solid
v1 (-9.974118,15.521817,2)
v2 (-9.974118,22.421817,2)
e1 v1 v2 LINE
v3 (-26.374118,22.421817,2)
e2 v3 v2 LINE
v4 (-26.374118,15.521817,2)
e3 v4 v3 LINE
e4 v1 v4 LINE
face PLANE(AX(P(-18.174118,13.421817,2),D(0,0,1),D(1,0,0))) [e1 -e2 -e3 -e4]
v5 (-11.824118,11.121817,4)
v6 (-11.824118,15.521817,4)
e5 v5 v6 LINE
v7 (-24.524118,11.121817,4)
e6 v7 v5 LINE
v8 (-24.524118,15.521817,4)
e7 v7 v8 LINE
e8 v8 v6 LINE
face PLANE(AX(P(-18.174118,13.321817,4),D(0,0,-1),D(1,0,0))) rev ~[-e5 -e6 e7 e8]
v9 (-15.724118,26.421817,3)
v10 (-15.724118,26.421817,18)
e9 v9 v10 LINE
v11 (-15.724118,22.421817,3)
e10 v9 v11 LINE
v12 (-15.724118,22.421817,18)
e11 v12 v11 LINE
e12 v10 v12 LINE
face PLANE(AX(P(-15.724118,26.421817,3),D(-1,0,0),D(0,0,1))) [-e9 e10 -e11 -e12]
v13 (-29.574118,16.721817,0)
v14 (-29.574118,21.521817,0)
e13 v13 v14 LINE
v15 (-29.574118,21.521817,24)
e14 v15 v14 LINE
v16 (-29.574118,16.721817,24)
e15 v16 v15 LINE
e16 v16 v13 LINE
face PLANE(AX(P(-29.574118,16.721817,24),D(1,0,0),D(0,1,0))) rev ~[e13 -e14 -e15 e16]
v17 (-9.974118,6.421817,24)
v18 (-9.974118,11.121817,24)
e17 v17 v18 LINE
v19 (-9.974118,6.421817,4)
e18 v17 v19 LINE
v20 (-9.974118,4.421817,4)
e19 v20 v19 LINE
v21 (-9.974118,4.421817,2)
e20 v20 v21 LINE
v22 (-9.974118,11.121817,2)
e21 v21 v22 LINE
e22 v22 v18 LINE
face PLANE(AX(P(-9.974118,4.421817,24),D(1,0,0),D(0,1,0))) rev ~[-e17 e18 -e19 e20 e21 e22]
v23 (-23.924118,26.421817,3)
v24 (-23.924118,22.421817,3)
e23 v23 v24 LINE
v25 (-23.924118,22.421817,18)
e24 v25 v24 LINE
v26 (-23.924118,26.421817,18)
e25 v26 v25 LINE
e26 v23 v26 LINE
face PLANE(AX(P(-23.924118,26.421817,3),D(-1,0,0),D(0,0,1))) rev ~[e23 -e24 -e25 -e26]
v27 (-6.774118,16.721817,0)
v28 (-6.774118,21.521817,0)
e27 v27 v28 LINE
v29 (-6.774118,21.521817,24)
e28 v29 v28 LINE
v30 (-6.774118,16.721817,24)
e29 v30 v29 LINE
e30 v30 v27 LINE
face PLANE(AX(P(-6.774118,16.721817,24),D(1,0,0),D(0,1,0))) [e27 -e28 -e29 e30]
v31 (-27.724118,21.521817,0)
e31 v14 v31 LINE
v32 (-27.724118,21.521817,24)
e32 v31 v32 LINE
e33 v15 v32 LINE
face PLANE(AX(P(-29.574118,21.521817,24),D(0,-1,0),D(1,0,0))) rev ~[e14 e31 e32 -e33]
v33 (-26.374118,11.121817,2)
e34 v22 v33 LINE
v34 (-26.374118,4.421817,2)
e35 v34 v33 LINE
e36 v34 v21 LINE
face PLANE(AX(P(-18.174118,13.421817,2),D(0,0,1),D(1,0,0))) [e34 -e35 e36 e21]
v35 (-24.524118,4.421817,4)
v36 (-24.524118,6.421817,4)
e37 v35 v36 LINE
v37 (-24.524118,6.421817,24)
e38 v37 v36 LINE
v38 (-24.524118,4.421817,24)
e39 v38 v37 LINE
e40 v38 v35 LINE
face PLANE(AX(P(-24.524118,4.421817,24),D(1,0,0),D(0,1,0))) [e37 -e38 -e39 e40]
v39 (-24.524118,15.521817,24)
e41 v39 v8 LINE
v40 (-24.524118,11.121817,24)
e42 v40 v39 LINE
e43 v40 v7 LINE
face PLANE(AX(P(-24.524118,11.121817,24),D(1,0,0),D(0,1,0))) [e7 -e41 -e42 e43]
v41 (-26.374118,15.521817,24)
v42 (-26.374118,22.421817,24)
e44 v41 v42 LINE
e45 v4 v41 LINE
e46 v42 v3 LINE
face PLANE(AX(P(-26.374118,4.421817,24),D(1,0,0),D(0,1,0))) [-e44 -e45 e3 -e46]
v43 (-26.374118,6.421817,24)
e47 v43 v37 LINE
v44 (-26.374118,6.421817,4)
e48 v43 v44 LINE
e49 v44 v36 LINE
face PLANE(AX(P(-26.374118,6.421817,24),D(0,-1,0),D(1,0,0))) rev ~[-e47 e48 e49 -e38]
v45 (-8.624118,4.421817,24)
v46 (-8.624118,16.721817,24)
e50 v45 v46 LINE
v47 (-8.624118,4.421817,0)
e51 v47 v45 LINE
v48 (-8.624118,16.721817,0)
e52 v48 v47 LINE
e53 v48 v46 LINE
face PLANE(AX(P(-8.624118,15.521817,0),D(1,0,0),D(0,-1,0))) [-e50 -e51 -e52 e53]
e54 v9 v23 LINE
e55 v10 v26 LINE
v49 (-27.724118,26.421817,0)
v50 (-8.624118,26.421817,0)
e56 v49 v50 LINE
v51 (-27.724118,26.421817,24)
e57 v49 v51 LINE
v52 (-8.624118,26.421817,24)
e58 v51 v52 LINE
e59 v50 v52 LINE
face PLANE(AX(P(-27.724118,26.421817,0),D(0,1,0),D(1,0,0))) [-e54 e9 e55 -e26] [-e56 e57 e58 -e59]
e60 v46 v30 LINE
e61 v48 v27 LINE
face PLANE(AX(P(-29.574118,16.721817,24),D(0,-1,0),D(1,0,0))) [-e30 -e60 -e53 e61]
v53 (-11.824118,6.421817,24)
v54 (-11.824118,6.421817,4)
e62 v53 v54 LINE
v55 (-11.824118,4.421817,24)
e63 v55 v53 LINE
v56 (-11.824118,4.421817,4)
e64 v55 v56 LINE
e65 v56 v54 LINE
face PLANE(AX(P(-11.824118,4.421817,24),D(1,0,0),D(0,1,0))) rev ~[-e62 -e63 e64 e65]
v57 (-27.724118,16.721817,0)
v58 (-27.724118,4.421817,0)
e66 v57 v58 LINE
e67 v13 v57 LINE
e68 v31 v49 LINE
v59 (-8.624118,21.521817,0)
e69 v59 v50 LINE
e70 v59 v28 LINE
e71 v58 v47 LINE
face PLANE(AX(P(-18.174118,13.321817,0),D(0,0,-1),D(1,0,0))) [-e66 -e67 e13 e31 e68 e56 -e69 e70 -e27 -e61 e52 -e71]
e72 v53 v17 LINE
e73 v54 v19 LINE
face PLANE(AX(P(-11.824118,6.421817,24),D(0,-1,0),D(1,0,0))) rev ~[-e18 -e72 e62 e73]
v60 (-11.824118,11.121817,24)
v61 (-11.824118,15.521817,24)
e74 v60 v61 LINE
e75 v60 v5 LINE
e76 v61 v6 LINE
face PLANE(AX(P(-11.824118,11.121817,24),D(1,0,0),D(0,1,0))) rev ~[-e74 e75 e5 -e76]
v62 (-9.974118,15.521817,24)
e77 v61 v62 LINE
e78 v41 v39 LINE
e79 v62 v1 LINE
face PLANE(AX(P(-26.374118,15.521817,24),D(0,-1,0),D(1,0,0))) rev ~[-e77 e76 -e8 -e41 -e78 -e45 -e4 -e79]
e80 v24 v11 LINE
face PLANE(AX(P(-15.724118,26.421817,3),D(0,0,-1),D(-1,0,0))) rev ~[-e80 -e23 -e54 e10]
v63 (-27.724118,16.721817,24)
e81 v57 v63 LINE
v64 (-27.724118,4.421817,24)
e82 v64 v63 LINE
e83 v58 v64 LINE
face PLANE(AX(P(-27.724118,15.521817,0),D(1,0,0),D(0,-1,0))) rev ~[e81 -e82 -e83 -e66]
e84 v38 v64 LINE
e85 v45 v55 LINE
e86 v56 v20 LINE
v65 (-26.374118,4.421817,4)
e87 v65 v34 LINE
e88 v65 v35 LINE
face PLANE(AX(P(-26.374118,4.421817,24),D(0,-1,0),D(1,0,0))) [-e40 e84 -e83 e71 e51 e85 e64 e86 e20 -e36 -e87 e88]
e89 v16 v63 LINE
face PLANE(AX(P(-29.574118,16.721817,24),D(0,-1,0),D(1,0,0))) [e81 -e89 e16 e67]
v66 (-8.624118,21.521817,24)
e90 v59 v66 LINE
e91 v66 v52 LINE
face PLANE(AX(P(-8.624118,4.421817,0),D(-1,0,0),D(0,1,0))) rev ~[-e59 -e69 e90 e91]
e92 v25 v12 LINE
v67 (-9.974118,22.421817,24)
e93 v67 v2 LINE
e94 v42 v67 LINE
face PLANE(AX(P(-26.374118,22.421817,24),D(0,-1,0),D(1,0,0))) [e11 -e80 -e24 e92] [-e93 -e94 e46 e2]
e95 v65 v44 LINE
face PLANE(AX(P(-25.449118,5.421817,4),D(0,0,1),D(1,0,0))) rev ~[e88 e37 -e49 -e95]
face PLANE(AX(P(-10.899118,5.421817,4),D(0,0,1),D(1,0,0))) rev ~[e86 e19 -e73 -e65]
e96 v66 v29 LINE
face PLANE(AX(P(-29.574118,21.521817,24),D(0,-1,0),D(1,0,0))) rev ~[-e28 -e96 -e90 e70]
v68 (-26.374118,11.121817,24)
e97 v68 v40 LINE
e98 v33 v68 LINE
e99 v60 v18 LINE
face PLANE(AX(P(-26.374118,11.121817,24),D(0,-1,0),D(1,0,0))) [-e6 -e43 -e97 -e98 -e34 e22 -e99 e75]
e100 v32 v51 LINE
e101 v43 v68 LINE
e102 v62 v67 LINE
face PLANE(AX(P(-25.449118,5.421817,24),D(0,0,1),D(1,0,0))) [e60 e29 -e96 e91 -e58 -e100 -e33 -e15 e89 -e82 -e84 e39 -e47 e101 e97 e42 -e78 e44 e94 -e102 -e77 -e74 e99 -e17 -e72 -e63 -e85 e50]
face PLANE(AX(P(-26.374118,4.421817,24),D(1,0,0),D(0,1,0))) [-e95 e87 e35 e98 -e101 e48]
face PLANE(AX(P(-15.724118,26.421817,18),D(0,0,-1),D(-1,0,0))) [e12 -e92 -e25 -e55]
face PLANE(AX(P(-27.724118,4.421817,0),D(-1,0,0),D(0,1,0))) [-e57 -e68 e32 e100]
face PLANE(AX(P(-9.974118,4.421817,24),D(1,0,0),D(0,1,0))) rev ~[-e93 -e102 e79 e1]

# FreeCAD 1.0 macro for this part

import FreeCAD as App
import Part
import Sketcher

V = App.Vector


def add_polygon(sketch, points):
    """Adds a closed chain of lines whose ends are joined by coincident constraints."""
    first, n = sketch.GeometryCount, len(points)
    for a, b in zip(points, points[1:] + points[:1]):
        sketch.addGeometry(Part.LineSegment(App.Vector(*a, 0), App.Vector(*b, 0)), False)
    for i in range(n):
        sketch.addConstraint(Sketcher.Constraint("Coincident", first + i, 2, first + (i + 1) % n, 1))

doc = App.newDocument("Part")
params = doc.addObject("Spreadsheet::Sheet", "Params")
for row, (alias, value) in enumerate([
    ("sketch1_height", "22 mm"),
    ("sketch1_width", "19.1 mm"),
    ("pad1_length", "24 mm"),
    ("sketch2_width", "22.8 mm"),
    ("sketch2_height", "4.8 mm"),
    ("pad2_length", "24 mm"),
    ("sketch3_height", "18 mm"),
    ("sketch3_width", "16.4 mm"),
    ("pocket1_length", "22 mm"),
    ("sketch4_height", "15 mm"),
    ("sketch4_width", "8.2 mm"),
    ("pocket2_length", "5 mm"),
    ("sketch5_height", "2 mm"),
    ("sketch5_height2", "4.4 mm"),
    ("sketch5_width", "1.85 mm"),
    ("pad3_length", "20 mm"),
    ("sketch6_width", "19.1 mm"),
    ("sketch6_height", "4.4 mm"),
    ("pad4_length", "4 mm"),
], start=1):
    params.set(f"A{row}", alias)
    params.set(f"B{row}", "=" + value)
    params.setAlias(f"B{row}", alias)

body = doc.addObject("PartDesign::Body", "Body")

sketch1 = body.newObject("Sketcher::SketchObject", "Sketch")
sketch1.AttachmentSupport = (doc.getObject("XY_Plane"), [""])
sketch1.MapMode = "FlatFace"
add_polygon(sketch1, [(-27.724118, 26.421817), (-27.724118, 4.421817), (-8.624118, 4.421817), (-8.624118, 26.421817)])
sketch1.addConstraint([
    Sketcher.Constraint("Vertical", 0),
    Sketcher.Constraint("Horizontal", 1),
    Sketcher.Constraint("Vertical", 2),
    Sketcher.Constraint("Horizontal", 3),
    Sketcher.Constraint("DistanceY", 0, 2, 0, 1, 22.0),
    Sketcher.Constraint("DistanceX", 1, 1, 1, 2, 19.1),
    Sketcher.Constraint("DistanceX", 0, 2, -1, 1, 27.724118),
    Sketcher.Constraint("DistanceY", -1, 1, 0, 2, 4.421817),
])
sketch1.setExpression("Constraints[8]", "Params.sketch1_height")
sketch1.setExpression("Constraints[9]", "Params.sketch1_width")
pad1 = body.newObject("PartDesign::Pad", "Pad")
pad1.Profile = sketch1
pad1.setExpression("Length", "Params.pad1_length")

sketch2 = body.newObject("Sketcher::SketchObject", "Sketch001")
sketch2.AttachmentSupport = (doc.getObject("XY_Plane"), [""])
sketch2.MapMode = "FlatFace"
sketch2.AttachmentOffset = App.Placement(V(0, 0, 24), App.Rotation())
add_polygon(sketch2, [(-29.574118, 21.521817), (-29.574118, 16.721817), (-6.774118, 16.721817), (-6.774118, 21.521817)])
sketch2.addConstraint([
    Sketcher.Constraint("Vertical", 0),
    Sketcher.Constraint("Horizontal", 1),
    Sketcher.Constraint("Vertical", 2),
    Sketcher.Constraint("Horizontal", 3),
    Sketcher.Constraint("DistanceX", 1, 1, 1, 2, 22.8),
    Sketcher.Constraint("DistanceY", 0, 2, 0, 1, 4.8),
    Sketcher.Constraint("DistanceX", 0, 2, -1, 1, 29.574118),
    Sketcher.Constraint("DistanceY", -1, 1, 0, 2, 16.721817),
])
sketch2.setExpression("Constraints[8]", "Params.sketch2_width")
sketch2.setExpression("Constraints[9]", "Params.sketch2_height")
pad2 = body.newObject("PartDesign::Pad", "Pad001")
pad2.Profile = sketch2
pad2.setExpression("Length", "Params.pad2_length")
pad2.Reversed = True

sketch3 = body.newObject("Sketcher::SketchObject", "Sketch002")
sketch3.AttachmentSupport = (doc.getObject("XY_Plane"), [""])
sketch3.MapMode = "FlatFace"
sketch3.AttachmentOffset = App.Placement(V(0, 0, 24), App.Rotation())
add_polygon(sketch3, [(-26.374118, 22.421817), (-26.374118, 4.421817), (-9.974118, 4.421817), (-9.974118, 22.421817)])
sketch3.addConstraint([
    Sketcher.Constraint("Vertical", 0),
    Sketcher.Constraint("Horizontal", 1),
    Sketcher.Constraint("Vertical", 2),
    Sketcher.Constraint("Horizontal", 3),
    Sketcher.Constraint("DistanceY", 0, 2, 0, 1, 18.0),
    Sketcher.Constraint("DistanceX", 1, 1, 1, 2, 16.4),
    Sketcher.Constraint("DistanceX", 1, 2, -1, 1, 9.974118),
    Sketcher.Constraint("DistanceY", -1, 1, 0, 2, 4.421817),
])
sketch3.setExpression("Constraints[8]", "Params.sketch3_height")
sketch3.setExpression("Constraints[9]", "Params.sketch3_width")
pocket1 = body.newObject("PartDesign::Pocket", "Pocket")
pocket1.Profile = sketch3
pocket1.setExpression("Length", "Params.pocket1_length")

sketch4 = body.newObject("Sketcher::SketchObject", "Sketch003")
sketch4.AttachmentSupport = (doc.getObject("XZ_Plane"), [""])
sketch4.MapMode = "FlatFace"
sketch4.AttachmentOffset = App.Placement(V(0, 0, -26.421817), App.Rotation())
add_polygon(sketch4, [(-15.724118, 18), (-15.724118, 3), (-23.924118, 3), (-23.924118, 18)])
sketch4.addConstraint([
    Sketcher.Constraint("Vertical", 0),
    Sketcher.Constraint("Horizontal", 1),
    Sketcher.Constraint("Vertical", 2),
    Sketcher.Constraint("Horizontal", 3),
    Sketcher.Constraint("DistanceY", 0, 2, 0, 1, 15.0),
    Sketcher.Constraint("DistanceX", 1, 2, 1, 1, 8.2),
    Sketcher.Constraint("DistanceY", -1, 1, 0, 2, 3.0),
    Sketcher.Constraint("DistanceX", 0, 2, -1, 1, 15.724118),
])
sketch4.setExpression("Constraints[8]", "Params.sketch4_height")
sketch4.setExpression("Constraints[9]", "Params.sketch4_width")
pocket2 = body.newObject("PartDesign::Pocket", "Pocket001")
pocket2.Profile = sketch4
pocket2.setExpression("Length", "Params.pocket2_length")
pocket2.Reversed = True

sketch5 = body.newObject("Sketcher::SketchObject", "Sketch004")
sketch5.AttachmentSupport = (doc.getObject("XY_Plane"), [""])
sketch5.MapMode = "FlatFace"
sketch5.AttachmentOffset = App.Placement(V(0, 0, 24), App.Rotation())
add_polygon(sketch5, [(-26.374118, 6.421817), (-26.374118, 4.421817), (-24.524118, 4.421817), (-24.524118, 6.421817)])
add_polygon(sketch5, [(-11.824118, 6.421817), (-11.824118, 4.421817), (-9.974118, 4.421817), (-9.974118, 6.421817)])
add_polygon(sketch5, [(-26.374118, 15.521817), (-26.374118, 11.121817), (-24.524118, 11.121817), (-24.524118, 15.521817)])
add_polygon(sketch5, [(-11.824118, 15.521817), (-11.824118, 11.121817), (-9.974118, 11.121817), (-9.974118, 15.521817)])
sketch5.addConstraint([
    Sketcher.Constraint("Vertical", 0),
    Sketcher.Constraint("Horizontal", 1),
    Sketcher.Constraint("Vertical", 2),
    Sketcher.Constraint("Horizontal", 3),
    Sketcher.Constraint("Vertical", 4),
    Sketcher.Constraint("Horizontal", 5),
    Sketcher.Constraint("Vertical", 6),
    Sketcher.Constraint("Horizontal", 7),
    Sketcher.Constraint("Vertical", 8),
    Sketcher.Constraint("Horizontal", 9),
    Sketcher.Constraint("Vertical", 10),
    Sketcher.Constraint("Horizontal", 11),
    Sketcher.Constraint("Vertical", 12),
    Sketcher.Constraint("Horizontal", 13),
    Sketcher.Constraint("Vertical", 14),
    Sketcher.Constraint("Horizontal", 15),
    Sketcher.Constraint("Horizontal", 1, 2, 4, 2),
    Sketcher.Constraint("Horizontal", 3, 2, 6, 2),
    Sketcher.Constraint("Horizontal", 9, 2, 12, 2),
    Sketcher.Constraint("Horizontal", 11, 2, 14, 2),
    Sketcher.Constraint("Vertical", 3, 2, 8, 2),
    Sketcher.Constraint("Vertical", 2, 2, 9, 2),
    Sketcher.Constraint("Vertical", 7, 2, 12, 2),
    Sketcher.Constraint("Vertical", 6, 2, 13, 2),
    Sketcher.Constraint("Equal", 3, 5),
    Sketcher.Constraint("DistanceY", 0, 2, 0, 1, 2.0),
    Sketcher.Constraint("DistanceY", 8, 2, 8, 1, 4.4),
    Sketcher.Constraint("DistanceX", 1, 1, 1, 2, 1.85),
    Sketcher.Constraint("DistanceX", 1, 2, 4, 2, 12.7),
    Sketcher.Constraint("DistanceY", 3, 2, 8, 2, 4.7),
    Sketcher.Constraint("DistanceX", 1, 2, -1, 1, 24.524118),
    Sketcher.Constraint("DistanceY", -1, 1, 0, 2, 4.421817),
])
sketch5.setExpression("Constraints[41]", "Params.sketch5_height")
sketch5.setExpression("Constraints[42]", "Params.sketch5_height2")
sketch5.setExpression("Constraints[43]", "Params.sketch5_width")
pad3 = body.newObject("PartDesign::Pad", "Pad002")
pad3.Profile = sketch5
pad3.setExpression("Length", "Params.pad3_length")
pad3.Reversed = True

sketch6 = body.newObject("Sketcher::SketchObject", "Sketch005")
sketch6.AttachmentSupport = (doc.getObject("XY_Plane"), [""])
sketch6.MapMode = "FlatFace"
add_polygon(sketch6, [(-27.724118, 11.121817), (-27.724118, 15.521817), (-8.624118, 15.521817), (-8.624118, 11.121817)])
sketch6.addConstraint([
    Sketcher.Constraint("Vertical", 0),
    Sketcher.Constraint("Horizontal", 1),
    Sketcher.Constraint("Vertical", 2),
    Sketcher.Constraint("Horizontal", 3),
    Sketcher.Constraint("DistanceX", 1, 1, 1, 2, 19.1),
    Sketcher.Constraint("DistanceY", 0, 1, 0, 2, 4.4),
    Sketcher.Constraint("DistanceX", 0, 2, -1, 1, 27.724118),
    Sketcher.Constraint("DistanceY", -1, 1, 0, 2, 15.521817),
])
sketch6.setExpression("Constraints[8]", "Params.sketch6_width")
sketch6.setExpression("Constraints[9]", "Params.sketch6_height")
pad4 = body.newObject("PartDesign::Pad", "Pad003")
pad4.Profile = sketch6
pad4.setExpression("Length", "Params.pad4_length")

doc.recompute()
